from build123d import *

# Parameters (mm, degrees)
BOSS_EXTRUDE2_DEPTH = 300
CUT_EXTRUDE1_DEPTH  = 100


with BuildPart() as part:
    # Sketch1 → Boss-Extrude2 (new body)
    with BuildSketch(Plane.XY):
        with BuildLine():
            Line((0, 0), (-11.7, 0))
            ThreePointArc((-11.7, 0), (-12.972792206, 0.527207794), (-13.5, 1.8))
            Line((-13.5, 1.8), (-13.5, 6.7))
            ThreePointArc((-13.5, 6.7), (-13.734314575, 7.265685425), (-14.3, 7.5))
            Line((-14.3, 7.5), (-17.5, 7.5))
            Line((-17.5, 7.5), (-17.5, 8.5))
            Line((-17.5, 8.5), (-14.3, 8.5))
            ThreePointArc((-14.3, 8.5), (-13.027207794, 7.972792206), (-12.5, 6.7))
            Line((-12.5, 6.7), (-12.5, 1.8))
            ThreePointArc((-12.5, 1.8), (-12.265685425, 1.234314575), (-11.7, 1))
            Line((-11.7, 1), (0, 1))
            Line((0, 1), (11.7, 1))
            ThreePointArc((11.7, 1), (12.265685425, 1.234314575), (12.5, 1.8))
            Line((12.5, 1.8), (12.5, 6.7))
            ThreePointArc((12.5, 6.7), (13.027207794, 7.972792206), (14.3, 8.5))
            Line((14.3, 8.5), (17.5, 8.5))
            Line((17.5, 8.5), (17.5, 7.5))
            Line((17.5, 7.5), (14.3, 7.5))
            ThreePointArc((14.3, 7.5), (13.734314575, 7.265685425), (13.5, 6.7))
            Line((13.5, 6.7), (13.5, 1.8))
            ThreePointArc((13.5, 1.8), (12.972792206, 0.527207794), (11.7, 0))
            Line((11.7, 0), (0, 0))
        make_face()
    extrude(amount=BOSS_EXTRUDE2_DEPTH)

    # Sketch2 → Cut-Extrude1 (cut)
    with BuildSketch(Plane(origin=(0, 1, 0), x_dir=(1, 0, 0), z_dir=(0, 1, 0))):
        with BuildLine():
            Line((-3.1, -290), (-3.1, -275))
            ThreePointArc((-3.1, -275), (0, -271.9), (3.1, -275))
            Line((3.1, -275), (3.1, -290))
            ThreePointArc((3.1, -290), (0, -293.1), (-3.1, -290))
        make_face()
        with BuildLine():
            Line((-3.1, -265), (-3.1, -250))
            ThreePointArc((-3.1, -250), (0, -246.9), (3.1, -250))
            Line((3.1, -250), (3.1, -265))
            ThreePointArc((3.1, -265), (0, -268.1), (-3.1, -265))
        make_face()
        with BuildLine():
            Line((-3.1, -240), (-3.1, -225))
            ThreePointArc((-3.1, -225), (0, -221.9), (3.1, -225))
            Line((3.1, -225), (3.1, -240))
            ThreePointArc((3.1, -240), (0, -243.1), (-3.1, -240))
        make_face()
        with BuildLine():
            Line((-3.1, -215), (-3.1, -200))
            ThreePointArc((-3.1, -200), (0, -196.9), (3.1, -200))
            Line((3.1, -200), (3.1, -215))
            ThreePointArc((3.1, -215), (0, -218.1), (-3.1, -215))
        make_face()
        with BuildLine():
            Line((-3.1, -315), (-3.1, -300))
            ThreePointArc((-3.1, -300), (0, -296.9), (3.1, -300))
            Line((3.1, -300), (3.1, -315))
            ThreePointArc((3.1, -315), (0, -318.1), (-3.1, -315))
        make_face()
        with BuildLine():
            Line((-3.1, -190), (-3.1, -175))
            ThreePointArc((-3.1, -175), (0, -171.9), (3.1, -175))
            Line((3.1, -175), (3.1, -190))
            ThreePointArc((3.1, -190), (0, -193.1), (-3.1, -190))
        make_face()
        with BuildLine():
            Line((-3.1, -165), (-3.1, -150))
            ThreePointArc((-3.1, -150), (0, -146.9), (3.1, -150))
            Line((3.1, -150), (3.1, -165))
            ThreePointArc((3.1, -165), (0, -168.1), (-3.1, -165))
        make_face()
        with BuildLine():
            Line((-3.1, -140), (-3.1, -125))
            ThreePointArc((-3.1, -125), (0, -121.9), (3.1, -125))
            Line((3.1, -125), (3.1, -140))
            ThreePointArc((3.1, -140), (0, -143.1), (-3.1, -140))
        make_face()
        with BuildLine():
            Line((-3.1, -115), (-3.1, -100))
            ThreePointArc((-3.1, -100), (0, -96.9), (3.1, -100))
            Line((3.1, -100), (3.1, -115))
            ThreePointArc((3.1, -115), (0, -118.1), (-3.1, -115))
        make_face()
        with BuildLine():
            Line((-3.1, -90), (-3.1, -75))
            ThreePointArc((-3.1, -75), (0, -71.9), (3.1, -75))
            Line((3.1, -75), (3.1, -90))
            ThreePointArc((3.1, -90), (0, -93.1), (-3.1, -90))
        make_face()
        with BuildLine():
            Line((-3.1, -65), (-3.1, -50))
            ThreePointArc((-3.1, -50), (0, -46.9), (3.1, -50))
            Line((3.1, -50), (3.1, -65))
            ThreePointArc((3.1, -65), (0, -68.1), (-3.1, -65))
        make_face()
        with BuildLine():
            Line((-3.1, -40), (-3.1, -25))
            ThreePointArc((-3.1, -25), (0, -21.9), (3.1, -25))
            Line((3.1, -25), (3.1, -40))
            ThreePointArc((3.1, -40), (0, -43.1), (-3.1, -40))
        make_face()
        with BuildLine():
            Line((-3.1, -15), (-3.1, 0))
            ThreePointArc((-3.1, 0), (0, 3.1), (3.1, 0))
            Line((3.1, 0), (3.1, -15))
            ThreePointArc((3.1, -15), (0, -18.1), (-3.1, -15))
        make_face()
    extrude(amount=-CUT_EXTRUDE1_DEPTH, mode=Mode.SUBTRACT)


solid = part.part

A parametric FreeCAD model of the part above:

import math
import FreeCAD as App
import Part
import Sketcher
Q = App.Units.Quantity

doc = App.newDocument("Part")
body = doc.addObject("PartDesign::Body", "Body")

sketch1 = doc.addObject("Sketcher::SketchObject", "Sketch")
body.addObject(sketch1)
sketch1.AttachmentSupport = (doc.XY_Plane, [""])
sketch1.MapMode = "FlatFace"
sketch1.addGeometry([
    Part.ArcOfCircle(Part.Circle(App.Vector(-11.7, 1.8, 0), App.Vector(0, 0, 1), 1.8), math.radians(180), math.radians(270)),
    Part.LineSegment(App.Vector(-11.7, 0, 0), App.Vector(11.7, 0, 0)),
    Part.ArcOfCircle(Part.Circle(App.Vector(11.7, 1.8, 0), App.Vector(0, 0, 1), 1.8), math.radians(-90), math.radians(0)),
    Part.LineSegment(App.Vector(13.5, 1.8, 0), App.Vector(13.5, 6.7, 0)),
    Part.ArcOfCircle(Part.Circle(App.Vector(14.3, 6.7, 0), App.Vector(0, 0, 1), 0.8), math.radians(90), math.radians(180)),
    Part.LineSegment(App.Vector(14.3, 7.5, 0), App.Vector(17.5, 7.5, 0)),
    Part.LineSegment(App.Vector(17.5, 7.5, 0), App.Vector(17.5, 8.5, 0)),
    Part.LineSegment(App.Vector(17.5, 8.5, 0), App.Vector(14.3, 8.5, 0)),
    Part.ArcOfCircle(Part.Circle(App.Vector(14.3, 6.7, 0), App.Vector(0, 0, 1), 1.8), math.radians(90), math.radians(180)),
    Part.LineSegment(App.Vector(12.5, 6.7, 0), App.Vector(12.5, 1.8, 0)),
    Part.ArcOfCircle(Part.Circle(App.Vector(11.7, 1.8, 0), App.Vector(0, 0, 1), 0.8), math.radians(-90), math.radians(0)),
    Part.LineSegment(App.Vector(11.7, 1, 0), App.Vector(-11.7, 1, 0)),
    Part.ArcOfCircle(Part.Circle(App.Vector(-11.7, 1.8, 0), App.Vector(0, 0, 1), 0.8), math.radians(180), math.radians(270)),
    Part.LineSegment(App.Vector(-12.5, 1.8, 0), App.Vector(-12.5, 6.7, 0)),
    Part.ArcOfCircle(Part.Circle(App.Vector(-14.3, 6.7, 0), App.Vector(0, 0, 1), 1.8), math.radians(0), math.radians(90)),
    Part.LineSegment(App.Vector(-14.3, 8.5, 0), App.Vector(-17.5, 8.5, 0)),
    Part.LineSegment(App.Vector(-17.5, 8.5, 0), App.Vector(-17.5, 7.5, 0)),
    Part.LineSegment(App.Vector(-17.5, 7.5, 0), App.Vector(-14.3, 7.5, 0)),
    Part.ArcOfCircle(Part.Circle(App.Vector(-14.3, 6.7, 0), App.Vector(0, 0, 1), 0.8), math.radians(0), math.radians(90)),
    Part.LineSegment(App.Vector(-13.5, 6.7, 0), App.Vector(-13.5, 1.8, 0)),
], False)
sketch1.addConstraint([
    Sketcher.Constraint("Tangent", 0, 2, 1, 1),
    Sketcher.Constraint("Tangent", 1, 2, 2, 1),
    Sketcher.Constraint("Tangent", 2, 2, 3, 1),
    Sketcher.Constraint("Tangent", 3, 2, 4, 2),
    Sketcher.Constraint("Tangent", 4, 1, 5, 1),
    Sketcher.Constraint("Coincident", 5, 2, 6, 1),
    Sketcher.Constraint("Coincident", 6, 2, 7, 1),
    Sketcher.Constraint("Tangent", 7, 2, 8, 1),
    Sketcher.Constraint("Tangent", 8, 2, 9, 1),
    Sketcher.Constraint("Tangent", 9, 2, 10, 2),
    Sketcher.Constraint("Tangent", 10, 1, 11, 1),
    Sketcher.Constraint("Tangent", 11, 2, 12, 2),
    Sketcher.Constraint("Tangent", 12, 1, 13, 1),
    Sketcher.Constraint("Tangent", 13, 2, 14, 1),
    Sketcher.Constraint("Tangent", 14, 2, 15, 1),
    Sketcher.Constraint("Coincident", 15, 2, 16, 1),
    Sketcher.Constraint("Coincident", 16, 2, 17, 1),
    Sketcher.Constraint("Tangent", 17, 2, 18, 2),
    Sketcher.Constraint("Tangent", 18, 1, 19, 1),
    Sketcher.Constraint("Tangent", 19, 2, 0, 1),
    Sketcher.Constraint("Horizontal", 1),
    Sketcher.Constraint("Vertical", 3),
    Sketcher.Constraint("Horizontal", 5),
    Sketcher.Constraint("Vertical", 6),
    Sketcher.Constraint("Horizontal", 7),
    Sketcher.Constraint("Vertical", 9),
    Sketcher.Constraint("Horizontal", 11),
    Sketcher.Constraint("Vertical", 13),
    Sketcher.Constraint("Horizontal", 15),
    Sketcher.Constraint("Vertical", 16),
    Sketcher.Constraint("Horizontal", 17),
    Sketcher.Constraint("Vertical", 19),
    Sketcher.Constraint("Coincident", 8, 3, 4, 3),
    Sketcher.Constraint("Coincident", 10, 3, 2, 3),
    Sketcher.Constraint("Coincident", 12, 3, 0, 3),
    Sketcher.Constraint("Coincident", 18, 3, 14, 3),
    Sketcher.Constraint("Equal", 0, 2),
    Sketcher.Constraint("Equal", 2, 8),
    Sketcher.Constraint("Equal", 8, 14),
    Sketcher.Constraint("Symmetric", 0, 2, 1, 2, -1, 1),
    Sketcher.Constraint("Symmetric", 6, 2, 15, 2, -2),
    Sketcher.Constraint("Radius", 0, Q("1.8 mm")),
    Sketcher.Constraint("Radius", 4, Q("0.8 mm")),
    Sketcher.Constraint("DistanceX", 1, 1, 1, 2, Q("23.4 mm")),
    Sketcher.Constraint("DistanceX", 5, 1, 5, 2, Q("3.2 mm")),
    Sketcher.Constraint("DistanceY", 3, 1, 3, 2, Q("4.9 mm")),
])
pad1 = doc.addObject("PartDesign::Pad", "Pad")
body.addObject(pad1)
pad1.Profile = sketch1
pad1.Length = 300

sketch2 = doc.addObject("Sketcher::SketchObject", "Sketch001")
body.addObject(sketch2)
sketch2.AttachmentSupport = (doc.XZ_Plane, [""])
sketch2.MapMode = "FlatFace"
sketch2.AttachmentOffset = App.Placement(App.Vector(0, 0, -1), App.Rotation())
sketch2.addGeometry([
    Part.LineSegment(App.Vector(-3.1, 275, 0), App.Vector(-3.1, 290, 0)),
    Part.ArcOfCircle(Part.Circle(App.Vector(0, 290, 0), App.Vector(0, 0, 1), 3.1), math.radians(0), math.radians(180)),
    Part.LineSegment(App.Vector(3.1, 290, 0), App.Vector(3.1, 275, 0)),
    Part.ArcOfCircle(Part.Circle(App.Vector(0, 275, 0), App.Vector(0, 0, 1), 3.1), math.radians(180), math.radians(360)),
    Part.LineSegment(App.Vector(-3.1, 250, 0), App.Vector(-3.1, 265, 0)),
    Part.ArcOfCircle(Part.Circle(App.Vector(0, 265, 0), App.Vector(0, 0, 1), 3.1), math.radians(0), math.radians(180)),
    Part.LineSegment(App.Vector(3.1, 265, 0), App.Vector(3.1, 250, 0)),
    Part.ArcOfCircle(Part.Circle(App.Vector(0, 250, 0), App.Vector(0, 0, 1), 3.1), math.radians(180), math.radians(360)),
    Part.LineSegment(App.Vector(-3.1, 225, 0), App.Vector(-3.1, 240, 0)),
    Part.ArcOfCircle(Part.Circle(App.Vector(0, 240, 0), App.Vector(0, 0, 1), 3.1), math.radians(0), math.radians(180)),
    Part.LineSegment(App.Vector(3.1, 240, 0), App.Vector(3.1, 225, 0)),
    Part.ArcOfCircle(Part.Circle(App.Vector(0, 225, 0), App.Vector(0, 0, 1), 3.1), math.radians(180), math.radians(360)),
    Part.LineSegment(App.Vector(-3.1, 200, 0), App.Vector(-3.1, 215, 0)),
    Part.ArcOfCircle(Part.Circle(App.Vector(0, 215, 0), App.Vector(0, 0, 1), 3.1), math.radians(0), math.radians(180)),
    Part.LineSegment(App.Vector(3.1, 215, 0), App.Vector(3.1, 200, 0)),
    Part.ArcOfCircle(Part.Circle(App.Vector(0, 200, 0), App.Vector(0, 0, 1), 3.1), math.radians(180), math.radians(360)),
    Part.LineSegment(App.Vector(-3.1, 300, 0), App.Vector(-3.1, 315, 0)),
    Part.ArcOfCircle(Part.Circle(App.Vector(0, 315, 0), App.Vector(0, 0, 1), 3.1), math.radians(0), math.radians(180)),
    Part.LineSegment(App.Vector(3.1, 315, 0), App.Vector(3.1, 300, 0)),
    Part.ArcOfCircle(Part.Circle(App.Vector(0, 300, 0), App.Vector(0, 0, 1), 3.1), math.radians(180), math.radians(360)),
    Part.LineSegment(App.Vector(-3.1, 175, 0), App.Vector(-3.1, 190, 0)),
    Part.ArcOfCircle(Part.Circle(App.Vector(0, 190, 0), App.Vector(0, 0, 1), 3.1), math.radians(0), math.radians(180)),
    Part.LineSegment(App.Vector(3.1, 190, 0), App.Vector(3.1, 175, 0)),
    Part.ArcOfCircle(Part.Circle(App.Vector(0, 175, 0), App.Vector(0, 0, 1), 3.1), math.radians(180), math.radians(360)),
    Part.LineSegment(App.Vector(-3.1, 150, 0), App.Vector(-3.1, 165, 0)),
    Part.ArcOfCircle(Part.Circle(App.Vector(0, 165, 0), App.Vector(0, 0, 1), 3.1), math.radians(0), math.radians(180)),
    Part.LineSegment(App.Vector(3.1, 165, 0), App.Vector(3.1, 150, 0)),
    Part.ArcOfCircle(Part.Circle(App.Vector(0, 150, 0), App.Vector(0, 0, 1), 3.1), math.radians(180), math.radians(360)),
    Part.LineSegment(App.Vector(-3.1, 125, 0), App.Vector(-3.1, 140, 0)),
    Part.ArcOfCircle(Part.Circle(App.Vector(0, 140, 0), App.Vector(0, 0, 1), 3.1), math.radians(0), math.radians(180)),
    Part.LineSegment(App.Vector(3.1, 140, 0), App.Vector(3.1, 125, 0)),
    Part.ArcOfCircle(Part.Circle(App.Vector(0, 125, 0), App.Vector(0, 0, 1), 3.1), math.radians(180), math.radians(360)),
    Part.LineSegment(App.Vector(-3.1, 100, 0), App.Vector(-3.1, 115, 0)),
    Part.ArcOfCircle(Part.Circle(App.Vector(0, 115, 0), App.Vector(0, 0, 1), 3.1), math.radians(0), math.radians(180)),
    Part.LineSegment(App.Vector(3.1, 115, 0), App.Vector(3.1, 100, 0)),
    Part.ArcOfCircle(Part.Circle(App.Vector(0, 100, 0), App.Vector(0, 0, 1), 3.1), math.radians(180), math.radians(360)),
    Part.LineSegment(App.Vector(-3.1, 75, 0), App.Vector(-3.1, 90, 0)),
    Part.ArcOfCircle(Part.Circle(App.Vector(0, 90, 0), App.Vector(0, 0, 1), 3.1), math.radians(0), math.radians(180)),
    Part.LineSegment(App.Vector(3.1, 90, 0), App.Vector(3.1, 75, 0)),
    Part.ArcOfCircle(Part.Circle(App.Vector(0, 75, 0), App.Vector(0, 0, 1), 3.1), math.radians(180), math.radians(360)),
    Part.LineSegment(App.Vector(-3.1, 50, 0), App.Vector(-3.1, 65, 0)),
    Part.ArcOfCircle(Part.Circle(App.Vector(0, 65, 0), App.Vector(0, 0, 1), 3.1), math.radians(0), math.radians(180)),
    Part.LineSegment(App.Vector(3.1, 65, 0), App.Vector(3.1, 50, 0)),
    Part.ArcOfCircle(Part.Circle(App.Vector(0, 50, 0), App.Vector(0, 0, 1), 3.1), math.radians(180), math.radians(360)),
    Part.LineSegment(App.Vector(-3.1, 25, 0), App.Vector(-3.1, 40, 0)),
    Part.ArcOfCircle(Part.Circle(App.Vector(0, 40, 0), App.Vector(0, 0, 1), 3.1), math.radians(0), math.radians(180)),
    Part.LineSegment(App.Vector(3.1, 40, 0), App.Vector(3.1, 25, 0)),
    Part.ArcOfCircle(Part.Circle(App.Vector(0, 25, 0), App.Vector(0, 0, 1), 3.1), math.radians(180), math.radians(360)),
    Part.LineSegment(App.Vector(-3.1, 0, 0), App.Vector(-3.1, 15, 0)),
    Part.ArcOfCircle(Part.Circle(App.Vector(0, 15, 0), App.Vector(0, 0, 1), 3.1), math.radians(0), math.radians(180)),
    Part.LineSegment(App.Vector(3.1, 15, 0), App.Vector(3.1, 0, 0)),
    Part.ArcOfCircle(Part.Circle(App.Vector(0, 0, 0), App.Vector(0, 0, 1), 3.1), math.radians(180), math.radians(360)),
], False)
sketch2.addConstraint([
    Sketcher.Constraint("Tangent", 0, 2, 1, 2),
    Sketcher.Constraint("Tangent", 1, 1, 2, 1),
    Sketcher.Constraint("Tangent", 2, 2, 3, 2),
    Sketcher.Constraint("Tangent", 3, 1, 0, 1),
    Sketcher.Constraint("Tangent", 4, 2, 5, 2),
    Sketcher.Constraint("Tangent", 5, 1, 6, 1),
    Sketcher.Constraint("Tangent", 6, 2, 7, 2),
    Sketcher.Constraint("Tangent", 7, 1, 4, 1),
    Sketcher.Constraint("Tangent", 8, 2, 9, 2),
    Sketcher.Constraint("Tangent", 9, 1, 10, 1),
    Sketcher.Constraint("Tangent", 10, 2, 11, 2),
    Sketcher.Constraint("Tangent", 11, 1, 8, 1),
    Sketcher.Constraint("Tangent", 12, 2, 13, 2),
    Sketcher.Constraint("Tangent", 13, 1, 14, 1),
    Sketcher.Constraint("Tangent", 14, 2, 15, 2),
    Sketcher.Constraint("Tangent", 15, 1, 12, 1),
    Sketcher.Constraint("Tangent", 16, 2, 17, 2),
    Sketcher.Constraint("Tangent", 17, 1, 18, 1),
    Sketcher.Constraint("Tangent", 18, 2, 19, 2),
    Sketcher.Constraint("Tangent", 19, 1, 16, 1),
    Sketcher.Constraint("Tangent", 20, 2, 21, 2),
    Sketcher.Constraint("Tangent", 21, 1, 22, 1),
    Sketcher.Constraint("Tangent", 22, 2, 23, 2),
    Sketcher.Constraint("Tangent", 23, 1, 20, 1),
    Sketcher.Constraint("Tangent", 24, 2, 25, 2),
    Sketcher.Constraint("Tangent", 25, 1, 26, 1),
    Sketcher.Constraint("Tangent", 26, 2, 27, 2),
    Sketcher.Constraint("Tangent", 27, 1, 24, 1),
    Sketcher.Constraint("Tangent", 28, 2, 29, 2),
    Sketcher.Constraint("Tangent", 29, 1, 30, 1),
    Sketcher.Constraint("Tangent", 30, 2, 31, 2),
    Sketcher.Constraint("Tangent", 31, 1, 28, 1),
    Sketcher.Constraint("Tangent", 32, 2, 33, 2),
    Sketcher.Constraint("Tangent", 33, 1, 34, 1),
    Sketcher.Constraint("Tangent", 34, 2, 35, 2),
    Sketcher.Constraint("Tangent", 35, 1, 32, 1),
    Sketcher.Constraint("Tangent", 36, 2, 37, 2),
    Sketcher.Constraint("Tangent", 37, 1, 38, 1),
    Sketcher.Constraint("Tangent", 38, 2, 39, 2),
    Sketcher.Constraint("Tangent", 39, 1, 36, 1),
    Sketcher.Constraint("Tangent", 40, 2, 41, 2),
    Sketcher.Constraint("Tangent", 41, 1, 42, 1),
    Sketcher.Constraint("Tangent", 42, 2, 43, 2),
    Sketcher.Constraint("Tangent", 43, 1, 40, 1),
    Sketcher.Constraint("Tangent", 44, 2, 45, 2),
    Sketcher.Constraint("Tangent", 45, 1, 46, 1),
    Sketcher.Constraint("Tangent", 46, 2, 47, 2),
    Sketcher.Constraint("Tangent", 47, 1, 44, 1),
    Sketcher.Constraint("Tangent", 48, 2, 49, 2),
    Sketcher.Constraint("Tangent", 49, 1, 50, 1),
    Sketcher.Constraint("Tangent", 50, 2, 51, 2),
    Sketcher.Constraint("Tangent", 51, 1, 48, 1),
    Sketcher.Constraint("Vertical", 0),
    Sketcher.Constraint("Vertical", 2),
    Sketcher.Constraint("Vertical", 4),
    Sketcher.Constraint("Vertical", 6),
    Sketcher.Constraint("Vertical", 8),
    Sketcher.Constraint("Vertical", 10),
    Sketcher.Constraint("Vertical", 12),
    Sketcher.Constraint("Vertical", 14),
    Sketcher.Constraint("Vertical", 16),
    Sketcher.Constraint("Vertical", 18),
    Sketcher.Constraint("Vertical", 20),
    Sketcher.Constraint("Vertical", 22),
    Sketcher.Constraint("Vertical", 24),
    Sketcher.Constraint("Vertical", 26),
    Sketcher.Constraint("Vertical", 28),
    Sketcher.Constraint("Vertical", 30),
    Sketcher.Constraint("Vertical", 32),
    Sketcher.Constraint("Vertical", 34),
    Sketcher.Constraint("Vertical", 36),
    Sketcher.Constraint("Vertical", 38),
    Sketcher.Constraint("Vertical", 40),
    Sketcher.Constraint("Vertical", 42),
    Sketcher.Constraint("Vertical", 44),
    Sketcher.Constraint("Vertical", 46),
    Sketcher.Constraint("Vertical", 48),
    Sketcher.Constraint("Vertical", 50),
    Sketcher.Constraint("Coincident", 51, 3, -1, 1),
    Sketcher.Constraint("Equal", 3, 5),
    Sketcher.Constraint("Equal", 7, 9),
    Sketcher.Constraint("Equal", 11, 13),
    Sketcher.Constraint("Equal", 15, 17),
    Sketcher.Constraint("Equal", 19, 21),
    Sketcher.Constraint("Equal", 23, 25),
    Sketcher.Constraint("Equal", 27, 29),
    Sketcher.Constraint("Equal", 31, 33),
    Sketcher.Constraint("Equal", 35, 37),
    Sketcher.Constraint("Equal", 39, 41),
    Sketcher.Constraint("Equal", 43, 45),
    Sketcher.Constraint("Equal", 47, 49),
    Sketcher.Constraint("PointOnObject", 1, 3, -2),
    Sketcher.Constraint("PointOnObject", 5, 3, -2),
    Sketcher.Constraint("PointOnObject", 9, 3, -2),
    Sketcher.Constraint("PointOnObject", 13, 3, -2),
    Sketcher.Constraint("PointOnObject", 17, 3, -2),
    Sketcher.Constraint("PointOnObject", 21, 3, -2),
    Sketcher.Constraint("PointOnObject", 25, 3, -2),
    Sketcher.Constraint("PointOnObject", 29, 3, -2),
    Sketcher.Constraint("PointOnObject", 33, 3, -2),
    Sketcher.Constraint("PointOnObject", 37, 3, -2),
    Sketcher.Constraint("PointOnObject", 41, 3, -2),
    Sketcher.Constraint("PointOnObject", 45, 3, -2),
    Sketcher.Constraint("Equal", 2, 4),
    Sketcher.Constraint("Equal", 6, 8),
    Sketcher.Constraint("Equal", 10, 12),
    Sketcher.Constraint("Equal", 14, 16),
    Sketcher.Constraint("Equal", 18, 20),
    Sketcher.Constraint("Equal", 22, 24),
    Sketcher.Constraint("Equal", 26, 28),
    Sketcher.Constraint("Equal", 30, 32),
    Sketcher.Constraint("Equal", 34, 36),
    Sketcher.Constraint("Equal", 38, 40),
    Sketcher.Constraint("Equal", 42, 44),
    Sketcher.Constraint("Equal", 46, 48),
    Sketcher.Constraint("Radius", 1, Q("3.1 mm")),
    Sketcher.Constraint("DistanceY", 0, 1, 0, 2, Q("15 mm")),
    Sketcher.Constraint("DistanceY", -1, 1, 1, 3, Q("290 mm")),
    Sketcher.Constraint("DistanceY", -1, 1, 5, 3, Q("265 mm")),
    Sketcher.Constraint("DistanceY", -1, 1, 9, 3, Q("240 mm")),
    Sketcher.Constraint("DistanceY", -1, 1, 13, 3, Q("215 mm")),
    Sketcher.Constraint("DistanceY", -1, 1, 17, 3, Q("315 mm")),
    Sketcher.Constraint("DistanceY", -1, 1, 21, 3, Q("190 mm")),
    Sketcher.Constraint("DistanceY", -1, 1, 25, 3, Q("165 mm")),
    Sketcher.Constraint("DistanceY", -1, 1, 29, 3, Q("140 mm")),
    Sketcher.Constraint("DistanceY", -1, 1, 33, 3, Q("115 mm")),
    Sketcher.Constraint("DistanceY", -1, 1, 37, 3, Q("90 mm")),
    Sketcher.Constraint("DistanceY", -1, 1, 41, 3, Q("65 mm")),
    Sketcher.Constraint("DistanceY", -1, 1, 45, 3, Q("40 mm")),
])
pocket1 = doc.addObject("PartDesign::Pocket", "Pocket")
body.addObject(pocket1)
pocket1.Profile = sketch2
pocket1.Length = 100
pocket1.Reversed = True

doc.recompute()
